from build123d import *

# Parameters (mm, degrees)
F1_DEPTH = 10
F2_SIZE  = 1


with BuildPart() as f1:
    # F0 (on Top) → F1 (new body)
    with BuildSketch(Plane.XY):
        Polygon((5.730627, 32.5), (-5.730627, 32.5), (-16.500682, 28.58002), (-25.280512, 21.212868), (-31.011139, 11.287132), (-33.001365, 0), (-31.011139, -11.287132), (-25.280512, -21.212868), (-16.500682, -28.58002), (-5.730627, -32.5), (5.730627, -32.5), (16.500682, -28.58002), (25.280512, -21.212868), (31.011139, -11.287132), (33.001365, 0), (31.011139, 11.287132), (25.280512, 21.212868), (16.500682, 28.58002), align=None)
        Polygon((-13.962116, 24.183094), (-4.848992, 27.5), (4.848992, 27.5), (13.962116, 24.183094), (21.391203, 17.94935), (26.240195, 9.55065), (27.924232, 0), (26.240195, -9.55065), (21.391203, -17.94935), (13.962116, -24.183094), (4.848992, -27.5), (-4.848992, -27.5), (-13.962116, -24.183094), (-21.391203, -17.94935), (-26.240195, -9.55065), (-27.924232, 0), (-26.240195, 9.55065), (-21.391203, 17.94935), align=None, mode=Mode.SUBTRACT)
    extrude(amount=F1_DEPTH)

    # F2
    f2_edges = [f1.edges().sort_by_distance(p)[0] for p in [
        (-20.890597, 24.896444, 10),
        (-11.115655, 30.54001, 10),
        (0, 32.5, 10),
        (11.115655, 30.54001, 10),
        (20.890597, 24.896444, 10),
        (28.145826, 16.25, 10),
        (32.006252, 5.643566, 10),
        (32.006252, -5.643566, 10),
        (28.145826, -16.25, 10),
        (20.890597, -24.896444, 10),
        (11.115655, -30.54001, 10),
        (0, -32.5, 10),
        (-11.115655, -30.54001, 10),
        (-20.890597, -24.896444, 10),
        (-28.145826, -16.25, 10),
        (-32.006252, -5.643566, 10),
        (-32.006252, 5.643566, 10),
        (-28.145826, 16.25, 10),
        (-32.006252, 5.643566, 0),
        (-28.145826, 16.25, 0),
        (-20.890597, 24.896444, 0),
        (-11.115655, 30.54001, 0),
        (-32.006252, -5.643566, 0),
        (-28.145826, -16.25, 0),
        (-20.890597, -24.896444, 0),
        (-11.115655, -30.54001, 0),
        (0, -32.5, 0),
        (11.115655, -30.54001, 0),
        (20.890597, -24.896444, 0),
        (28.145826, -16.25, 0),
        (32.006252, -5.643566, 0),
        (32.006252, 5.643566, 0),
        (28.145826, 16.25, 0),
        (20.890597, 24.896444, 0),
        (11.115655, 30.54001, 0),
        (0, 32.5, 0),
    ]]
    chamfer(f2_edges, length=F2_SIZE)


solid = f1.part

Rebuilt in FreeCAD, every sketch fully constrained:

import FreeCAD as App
import Part
import Sketcher
Q = App.Units.Quantity


def edges_at(feature, points):
    """Names of the edges that pass closest to the given points."""
    edges = feature.Shape.Edges
    near = lambda p: min(range(len(edges)), key=lambda i: edges[i].distToShape(Part.Vertex(*p))[0])
    return sorted({f"Edge{near(p) + 1}" for p in points})

doc = App.newDocument("Part")
body = doc.addObject("PartDesign::Body", "Body")

# Sketch on XY plane
sketch1 = body.newObject("Sketcher::SketchObject", "Sketch")
sketch1.AttachmentSupport = (doc.getObject("XY_Plane"), [""])
sketch1.MapMode = "FlatFace"
sketch1.addGeometry([
    Part.LineSegment(App.Vector(5.730627, 32.5, 0), App.Vector(-5.730627, 32.5, 0)),  # 0
    Part.LineSegment(App.Vector(-5.730627, 32.5, 0), App.Vector(-16.500682, 28.58002, 0)),  # 1
    Part.LineSegment(App.Vector(-16.500682, 28.58002, 0), App.Vector(-25.280512, 21.212868, 0)),  # 2
    Part.LineSegment(App.Vector(-25.280512, 21.212868, 0), App.Vector(-31.011139, 11.287132, 0)),  # 3
    Part.LineSegment(App.Vector(-31.011139, 11.287132, 0), App.Vector(-33.001365, 0, 0)),  # 4
    Part.LineSegment(App.Vector(-33.001365, 0, 0), App.Vector(-31.011139, -11.287132, 0)),  # 5
    Part.LineSegment(App.Vector(-31.011139, -11.287132, 0), App.Vector(-25.280512, -21.212868, 0)),  # 6
    Part.LineSegment(App.Vector(-25.280512, -21.212868, 0), App.Vector(-16.500682, -28.58002, 0)),  # 7
    Part.LineSegment(App.Vector(-16.500682, -28.58002, 0), App.Vector(-5.730627, -32.5, 0)),  # 8
    Part.LineSegment(App.Vector(-5.730627, -32.5, 0), App.Vector(5.730627, -32.5, 0)),  # 9
    Part.LineSegment(App.Vector(5.730627, -32.5, 0), App.Vector(16.500682, -28.58002, 0)),  # 10
    Part.LineSegment(App.Vector(16.500682, -28.58002, 0), App.Vector(25.280512, -21.212868, 0)),  # 11
    Part.LineSegment(App.Vector(25.280512, -21.212868, 0), App.Vector(31.011139, -11.287132, 0)),  # 12
    Part.LineSegment(App.Vector(31.011139, -11.287132, 0), App.Vector(33.001365, 0, 0)),  # 13
    Part.LineSegment(App.Vector(33.001365, 0, 0), App.Vector(31.011139, 11.287132, 0)),  # 14
    Part.LineSegment(App.Vector(31.011139, 11.287132, 0), App.Vector(25.280512, 21.212868, 0)),  # 15
    Part.LineSegment(App.Vector(25.280512, 21.212868, 0), App.Vector(16.500682, 28.58002, 0)),  # 16
    Part.LineSegment(App.Vector(16.500682, 28.58002, 0), App.Vector(5.730627, 32.5, 0)),  # 17
    Part.LineSegment(App.Vector(-21.391203, 17.94935, 0), App.Vector(-13.962116, 24.183094, 0)),  # 18
    Part.LineSegment(App.Vector(-13.962116, 24.183094, 0), App.Vector(-4.848992, 27.5, 0)),  # 19
    Part.LineSegment(App.Vector(-4.848992, 27.5, 0), App.Vector(4.848992, 27.5, 0)),  # 20
    Part.LineSegment(App.Vector(4.848992, 27.5, 0), App.Vector(13.962116, 24.183094, 0)),  # 21
    Part.LineSegment(App.Vector(13.962116, 24.183094, 0), App.Vector(21.391203, 17.94935, 0)),  # 22
    Part.LineSegment(App.Vector(21.391203, 17.94935, 0), App.Vector(26.240195, 9.55065, 0)),  # 23
    Part.LineSegment(App.Vector(26.240195, 9.55065, 0), App.Vector(27.924232, 0, 0)),  # 24
    Part.LineSegment(App.Vector(27.924232, 0, 0), App.Vector(26.240195, -9.55065, 0)),  # 25
    Part.LineSegment(App.Vector(26.240195, -9.55065, 0), App.Vector(21.391203, -17.94935, 0)),  # 26
    Part.LineSegment(App.Vector(21.391203, -17.94935, 0), App.Vector(13.962116, -24.183094, 0)),  # 27
    Part.LineSegment(App.Vector(13.962116, -24.183094, 0), App.Vector(4.848992, -27.5, 0)),  # 28
    Part.LineSegment(App.Vector(4.848992, -27.5, 0), App.Vector(-4.848992, -27.5, 0)),  # 29
    Part.LineSegment(App.Vector(-4.848992, -27.5, 0), App.Vector(-13.962116, -24.183094, 0)),  # 30
    Part.LineSegment(App.Vector(-13.962116, -24.183094, 0), App.Vector(-21.391203, -17.94935, 0)),  # 31
    Part.LineSegment(App.Vector(-21.391203, -17.94935, 0), App.Vector(-26.240195, -9.55065, 0)),  # 32
    Part.LineSegment(App.Vector(-26.240195, -9.55065, 0), App.Vector(-27.924232, 0, 0)),  # 33
    Part.LineSegment(App.Vector(-27.924232, 0, 0), App.Vector(-26.240195, 9.55065, 0)),  # 34
    Part.LineSegment(App.Vector(-26.240195, 9.55065, 0), App.Vector(-21.391203, 17.94935, 0)),  # 35
], False)
sketch1.addConstraint([
    Sketcher.Constraint("Coincident", 0, 2, 1, 1),
    Sketcher.Constraint("Coincident", 1, 2, 2, 1),
    Sketcher.Constraint("Coincident", 2, 2, 3, 1),
    Sketcher.Constraint("Coincident", 3, 2, 4, 1),
    Sketcher.Constraint("Coincident", 4, 2, 5, 1),
    Sketcher.Constraint("Coincident", 5, 2, 6, 1),
    Sketcher.Constraint("Coincident", 6, 2, 7, 1),
    Sketcher.Constraint("Coincident", 7, 2, 8, 1),
    Sketcher.Constraint("Coincident", 8, 2, 9, 1),
    Sketcher.Constraint("Coincident", 9, 2, 10, 1),
    Sketcher.Constraint("Coincident", 10, 2, 11, 1),
    Sketcher.Constraint("Coincident", 11, 2, 12, 1),
    Sketcher.Constraint("Coincident", 12, 2, 13, 1),
    Sketcher.Constraint("Coincident", 13, 2, 14, 1),
    Sketcher.Constraint("Coincident", 14, 2, 15, 1),
    Sketcher.Constraint("Coincident", 15, 2, 16, 1),
    Sketcher.Constraint("Coincident", 16, 2, 17, 1),
    Sketcher.Constraint("Coincident", 17, 2, 0, 1),
    Sketcher.Constraint("Coincident", 18, 2, 19, 1),
    Sketcher.Constraint("Coincident", 19, 2, 20, 1),
    Sketcher.Constraint("Coincident", 20, 2, 21, 1),
    Sketcher.Constraint("Coincident", 21, 2, 22, 1),
    Sketcher.Constraint("Coincident", 22, 2, 23, 1),
    Sketcher.Constraint("Coincident", 23, 2, 24, 1),
    Sketcher.Constraint("Coincident", 24, 2, 25, 1),
    Sketcher.Constraint("Coincident", 25, 2, 26, 1),
    Sketcher.Constraint("Coincident", 26, 2, 27, 1),
    Sketcher.Constraint("Coincident", 27, 2, 28, 1),
    Sketcher.Constraint("Coincident", 28, 2, 29, 1),
    Sketcher.Constraint("Coincident", 29, 2, 30, 1),
    Sketcher.Constraint("Coincident", 30, 2, 31, 1),
    Sketcher.Constraint("Coincident", 31, 2, 32, 1),
    Sketcher.Constraint("Coincident", 32, 2, 33, 1),
    Sketcher.Constraint("Coincident", 33, 2, 34, 1),
    Sketcher.Constraint("Coincident", 34, 2, 35, 1),
    Sketcher.Constraint("Coincident", 35, 2, 18, 1),
    Sketcher.Constraint("Horizontal", 0),
    Sketcher.Constraint("Horizontal", 9),
    Sketcher.Constraint("Horizontal", 20),
    Sketcher.Constraint("Horizontal", 29),
    Sketcher.Constraint("Symmetric", 0, 2, 9, 2, -1, 1),
    Sketcher.Constraint("Symmetric", 1, 2, 10, 2, -1, 1),
    Sketcher.Constraint("Symmetric", 2, 2, 11, 2, -1, 1),
    Sketcher.Constraint("Symmetric", 3, 2, 12, 2, -1, 1),
    Sketcher.Constraint("Symmetric", 4, 2, 13, 2, -1, 1),
    Sketcher.Constraint("Symmetric", 5, 2, 14, 2, -1, 1),
    Sketcher.Constraint("Symmetric", 6, 2, 15, 2, -1, 1),
    Sketcher.Constraint("Symmetric", 7, 2, 16, 2, -1, 1),
    Sketcher.Constraint("Symmetric", 18, 2, 27, 2, -1, 1),
    Sketcher.Constraint("Symmetric", 19, 2, 28, 2, -1, 1),
    Sketcher.Constraint("Symmetric", 21, 2, 30, 2, -1, 1),
    Sketcher.Constraint("Symmetric", 22, 2, 31, 2, -1, 1),
    Sketcher.Constraint("Symmetric", 23, 2, 32, 2, -1, 1),
    Sketcher.Constraint("Symmetric", 24, 2, 33, 2, -1, 1),
    Sketcher.Constraint("Symmetric", 25, 2, 34, 2, -1, 1),
    Sketcher.Constraint("Symmetric", 26, 2, 35, 2, -1, 1),
    Sketcher.Constraint("Symmetric", 7, 2, 10, 2, -2),
    Sketcher.Constraint("Symmetric", 6, 2, 11, 2, -2),
    Sketcher.Constraint("Symmetric", 5, 2, 12, 2, -2),
    Sketcher.Constraint("Symmetric", 18, 2, 21, 2, -2),
    Sketcher.Constraint("Symmetric", 26, 2, 31, 2, -2),
    Sketcher.Constraint("Symmetric", 25, 2, 32, 2, -2),
    Sketcher.Constraint("PointOnObject", 4, 2, -1),
    Sketcher.Constraint("PointOnObject", 24, 2, -1),
    Sketcher.Constraint("Parallel", 8, 17),
    Sketcher.Constraint("Parallel", 11, 18),
    Sketcher.Constraint("Parallel", 10, 19),
    Sketcher.Constraint("Parallel", 17, 21),
    Sketcher.Constraint("Parallel", 15, 23),
    Sketcher.Constraint("Parallel", 14, 24),
    Sketcher.Constraint("Parallel", 21, 30),
    Sketcher.Constraint("Vertical", 0, 2, 8, 2),
    Sketcher.Constraint("Equal", 1, 2),
    Sketcher.Constraint("Equal", 2, 3),
    Sketcher.Constraint("Equal", 3, 4),
    Sketcher.Constraint("Equal", 18, 19),
    Sketcher.Constraint("Equal", 22, 23),
    Sketcher.Constraint("Equal", 23, 24),
    Sketcher.Constraint("Angle", 1, Q("-159.999997 deg")),
    Sketcher.Constraint("Angle", 2, Q("-140 deg")),
    Sketcher.Constraint("Angle", 3, Q("-120.000003 deg")),
    Sketcher.Constraint("Angle", 4, Q("-100 deg")),
    Sketcher.Constraint("DistanceY", 19, 2, 0, 2, Q("5 mm")),
    Sketcher.Constraint("DistanceY", -1, 1, 0, 2, Q("32.5 mm")),
    Sketcher.Constraint("DistanceX", 0, 2, 0, 1, Q("11.461254 mm")),
    Sketcher.Constraint("DistanceX", 20, 1, 20, 2, Q("9.697984 mm")),
])
pad1 = body.newObject("PartDesign::Pad", "Pad")
pad1.Profile = sketch1
pad1.Length = 10
doc.recompute()

chamfer = body.newObject("PartDesign::Chamfer", "Chamfer")
chamfer.Base = (pad1, edges_at(pad1, [
    (-20.891, 24.896, 10),
    (-11.116, 30.54, 10),
    (0, 32.5, 10),
    (11.116, 30.54, 10),
    (20.891, 24.896, 10),
    (28.146, 16.25, 10),
    (32.006, 5.644, 10),
    (32.006, -5.644, 10),
    (28.146, -16.25, 10),
    (20.891, -24.896, 10),
    (11.116, -30.54, 10),
    (0, -32.5, 10),
    (-11.116, -30.54, 10),
    (-20.891, -24.896, 10),
    (-28.146, -16.25, 10),
    (-32.006, -5.644, 10),
    (-32.006, 5.644, 10),
    (-28.146, 16.25, 10),
    (-32.006, 5.644, 0),
    (-28.146, 16.25, 0),
    (-20.891, 24.896, 0),
    (-11.116, 30.54, 0),
    (-32.006, -5.644, 0),
    (-28.146, -16.25, 0),
    (-20.891, -24.896, 0),
    (-11.116, -30.54, 0),
    (0, -32.5, 0),
    (11.116, -30.54, 0),
    (20.891, -24.896, 0),
    (28.146, -16.25, 0),
    (32.006, -5.644, 0),
    (32.006, 5.644, 0),
    (28.146, 16.25, 0),
    (20.891, 24.896, 0),
    (11.116, 30.54, 0),
    (0, 32.5, 0),
]))
chamfer.Size = 1

doc.recompute()
